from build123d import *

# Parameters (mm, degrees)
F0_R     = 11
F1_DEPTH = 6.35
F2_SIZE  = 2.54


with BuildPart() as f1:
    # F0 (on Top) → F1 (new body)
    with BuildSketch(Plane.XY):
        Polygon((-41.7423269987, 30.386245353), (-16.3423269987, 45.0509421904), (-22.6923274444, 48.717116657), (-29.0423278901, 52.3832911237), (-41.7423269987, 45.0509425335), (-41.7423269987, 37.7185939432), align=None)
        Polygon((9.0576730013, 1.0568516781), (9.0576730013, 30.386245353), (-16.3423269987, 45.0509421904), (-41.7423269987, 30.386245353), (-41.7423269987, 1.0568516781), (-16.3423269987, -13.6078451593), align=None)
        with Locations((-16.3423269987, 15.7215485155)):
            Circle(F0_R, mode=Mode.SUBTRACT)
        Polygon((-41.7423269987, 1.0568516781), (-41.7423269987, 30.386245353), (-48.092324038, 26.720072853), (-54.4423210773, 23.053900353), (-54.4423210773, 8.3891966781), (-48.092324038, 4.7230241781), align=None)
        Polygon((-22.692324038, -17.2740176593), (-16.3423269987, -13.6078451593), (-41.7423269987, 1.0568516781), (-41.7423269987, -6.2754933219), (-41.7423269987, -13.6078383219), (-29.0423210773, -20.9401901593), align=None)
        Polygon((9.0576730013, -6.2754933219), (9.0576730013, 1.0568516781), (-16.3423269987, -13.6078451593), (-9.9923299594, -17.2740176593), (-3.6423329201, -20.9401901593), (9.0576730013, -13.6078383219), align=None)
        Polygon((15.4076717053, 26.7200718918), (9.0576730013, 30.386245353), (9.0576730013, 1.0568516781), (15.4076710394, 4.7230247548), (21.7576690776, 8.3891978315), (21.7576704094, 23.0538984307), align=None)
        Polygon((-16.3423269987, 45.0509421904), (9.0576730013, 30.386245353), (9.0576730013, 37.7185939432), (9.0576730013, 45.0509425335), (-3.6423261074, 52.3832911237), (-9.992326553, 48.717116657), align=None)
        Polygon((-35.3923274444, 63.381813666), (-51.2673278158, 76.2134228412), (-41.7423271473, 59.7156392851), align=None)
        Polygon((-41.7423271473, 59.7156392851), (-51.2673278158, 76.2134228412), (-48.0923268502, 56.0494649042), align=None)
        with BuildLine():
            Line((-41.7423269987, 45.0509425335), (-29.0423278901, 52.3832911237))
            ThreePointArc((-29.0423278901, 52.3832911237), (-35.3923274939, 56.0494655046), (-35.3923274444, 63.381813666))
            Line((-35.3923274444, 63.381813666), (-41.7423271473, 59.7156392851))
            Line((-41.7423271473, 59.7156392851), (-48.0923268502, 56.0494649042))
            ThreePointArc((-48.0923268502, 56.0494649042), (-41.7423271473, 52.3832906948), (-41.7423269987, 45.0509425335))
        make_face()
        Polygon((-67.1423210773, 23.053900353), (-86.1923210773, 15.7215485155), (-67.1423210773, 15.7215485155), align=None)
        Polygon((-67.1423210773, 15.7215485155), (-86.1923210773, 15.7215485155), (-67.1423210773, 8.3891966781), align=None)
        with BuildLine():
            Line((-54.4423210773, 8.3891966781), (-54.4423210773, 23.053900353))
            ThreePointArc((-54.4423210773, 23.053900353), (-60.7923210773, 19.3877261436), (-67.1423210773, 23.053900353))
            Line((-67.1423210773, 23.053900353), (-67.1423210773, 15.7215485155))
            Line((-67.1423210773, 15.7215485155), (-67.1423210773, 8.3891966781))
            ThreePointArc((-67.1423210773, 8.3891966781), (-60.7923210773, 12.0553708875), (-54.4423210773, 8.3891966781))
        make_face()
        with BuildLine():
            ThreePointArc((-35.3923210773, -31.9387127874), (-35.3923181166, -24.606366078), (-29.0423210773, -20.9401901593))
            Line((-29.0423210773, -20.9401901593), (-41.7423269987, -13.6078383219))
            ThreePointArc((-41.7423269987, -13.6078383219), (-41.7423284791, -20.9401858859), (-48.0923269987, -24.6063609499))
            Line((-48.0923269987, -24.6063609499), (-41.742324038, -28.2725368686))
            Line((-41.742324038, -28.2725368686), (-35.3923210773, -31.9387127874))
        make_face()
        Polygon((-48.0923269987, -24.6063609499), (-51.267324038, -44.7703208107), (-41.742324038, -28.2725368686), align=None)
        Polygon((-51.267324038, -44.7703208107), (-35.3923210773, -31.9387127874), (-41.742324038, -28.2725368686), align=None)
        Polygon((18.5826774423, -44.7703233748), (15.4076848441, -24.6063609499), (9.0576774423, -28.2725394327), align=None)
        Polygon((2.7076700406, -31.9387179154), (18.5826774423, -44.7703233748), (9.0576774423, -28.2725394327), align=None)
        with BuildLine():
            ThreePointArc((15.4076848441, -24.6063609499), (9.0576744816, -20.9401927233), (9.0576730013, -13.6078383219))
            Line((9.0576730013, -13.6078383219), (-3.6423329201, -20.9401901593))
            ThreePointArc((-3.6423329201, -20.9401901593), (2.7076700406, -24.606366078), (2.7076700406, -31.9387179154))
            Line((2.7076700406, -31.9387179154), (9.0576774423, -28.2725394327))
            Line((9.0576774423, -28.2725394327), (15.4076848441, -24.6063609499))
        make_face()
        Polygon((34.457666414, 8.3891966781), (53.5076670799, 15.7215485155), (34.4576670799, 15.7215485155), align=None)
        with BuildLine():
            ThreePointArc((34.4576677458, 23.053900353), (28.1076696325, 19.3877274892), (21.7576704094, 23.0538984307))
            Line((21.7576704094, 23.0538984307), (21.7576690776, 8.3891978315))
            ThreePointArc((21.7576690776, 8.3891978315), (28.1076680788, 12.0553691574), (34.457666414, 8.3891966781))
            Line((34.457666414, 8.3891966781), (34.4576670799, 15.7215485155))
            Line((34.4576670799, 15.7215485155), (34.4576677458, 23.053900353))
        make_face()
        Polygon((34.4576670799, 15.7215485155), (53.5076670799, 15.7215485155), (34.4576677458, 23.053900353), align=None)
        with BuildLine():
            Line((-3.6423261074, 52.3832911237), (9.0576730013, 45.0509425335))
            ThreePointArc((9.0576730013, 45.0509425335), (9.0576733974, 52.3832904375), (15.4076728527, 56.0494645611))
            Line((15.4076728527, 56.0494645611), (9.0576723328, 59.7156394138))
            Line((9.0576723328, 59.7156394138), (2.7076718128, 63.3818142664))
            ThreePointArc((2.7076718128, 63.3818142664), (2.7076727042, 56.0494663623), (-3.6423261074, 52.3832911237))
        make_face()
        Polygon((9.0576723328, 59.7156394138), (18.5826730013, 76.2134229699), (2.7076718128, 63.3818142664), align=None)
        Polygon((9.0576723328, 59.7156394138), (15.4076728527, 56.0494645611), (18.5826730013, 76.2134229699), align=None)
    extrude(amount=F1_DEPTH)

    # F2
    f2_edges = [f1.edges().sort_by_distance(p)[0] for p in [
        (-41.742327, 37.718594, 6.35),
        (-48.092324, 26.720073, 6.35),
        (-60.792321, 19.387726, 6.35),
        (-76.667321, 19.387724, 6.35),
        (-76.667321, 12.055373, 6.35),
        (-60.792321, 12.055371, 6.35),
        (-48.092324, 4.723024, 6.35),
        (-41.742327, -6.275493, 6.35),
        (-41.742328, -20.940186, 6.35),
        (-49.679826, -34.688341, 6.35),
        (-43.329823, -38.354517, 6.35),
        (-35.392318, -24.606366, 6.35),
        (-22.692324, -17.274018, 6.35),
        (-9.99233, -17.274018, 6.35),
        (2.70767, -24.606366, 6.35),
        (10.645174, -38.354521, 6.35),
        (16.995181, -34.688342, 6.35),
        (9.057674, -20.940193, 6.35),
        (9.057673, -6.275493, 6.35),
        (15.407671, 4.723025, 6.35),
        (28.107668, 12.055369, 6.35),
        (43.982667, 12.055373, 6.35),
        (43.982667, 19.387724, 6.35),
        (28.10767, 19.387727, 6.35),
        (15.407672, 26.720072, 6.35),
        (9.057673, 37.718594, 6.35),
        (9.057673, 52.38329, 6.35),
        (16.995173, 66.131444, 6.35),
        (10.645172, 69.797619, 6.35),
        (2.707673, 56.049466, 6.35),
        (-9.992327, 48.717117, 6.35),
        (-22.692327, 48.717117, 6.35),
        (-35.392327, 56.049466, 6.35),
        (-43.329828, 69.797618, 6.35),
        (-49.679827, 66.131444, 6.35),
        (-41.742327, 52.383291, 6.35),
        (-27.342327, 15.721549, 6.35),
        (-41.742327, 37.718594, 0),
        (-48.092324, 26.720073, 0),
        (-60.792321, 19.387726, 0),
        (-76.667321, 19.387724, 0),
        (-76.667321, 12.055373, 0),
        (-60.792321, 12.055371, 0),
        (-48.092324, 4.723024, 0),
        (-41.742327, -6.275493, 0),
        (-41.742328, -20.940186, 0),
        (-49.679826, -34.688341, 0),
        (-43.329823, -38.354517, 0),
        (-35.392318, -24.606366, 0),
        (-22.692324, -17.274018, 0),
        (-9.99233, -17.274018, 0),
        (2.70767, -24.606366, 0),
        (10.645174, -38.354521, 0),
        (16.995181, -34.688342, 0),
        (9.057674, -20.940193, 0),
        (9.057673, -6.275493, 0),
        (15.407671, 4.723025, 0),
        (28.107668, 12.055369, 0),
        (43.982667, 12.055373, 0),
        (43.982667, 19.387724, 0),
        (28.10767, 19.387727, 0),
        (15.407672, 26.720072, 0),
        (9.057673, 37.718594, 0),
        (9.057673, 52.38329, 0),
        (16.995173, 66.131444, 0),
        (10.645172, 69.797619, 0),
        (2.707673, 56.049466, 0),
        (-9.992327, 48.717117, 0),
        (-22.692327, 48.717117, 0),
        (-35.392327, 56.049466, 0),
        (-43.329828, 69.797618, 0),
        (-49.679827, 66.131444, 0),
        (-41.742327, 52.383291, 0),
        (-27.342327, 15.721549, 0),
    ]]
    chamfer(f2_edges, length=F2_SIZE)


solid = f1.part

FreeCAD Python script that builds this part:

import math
import FreeCAD as App
import Part
import Sketcher

V = App.Vector
Q = App.Units.Quantity


def edges_at(feature, points):
    """Names of the edges that pass closest to the given points."""
    edges = feature.Shape.Edges
    near = lambda p: min(range(len(edges)), key=lambda i: edges[i].distToShape(Part.Vertex(*p))[0])
    return sorted({f"Edge{near(p) + 1}" for p in points})

doc = App.newDocument("Part")
body = doc.addObject("PartDesign::Body", "Body")

sketch1 = body.newObject("Sketcher::SketchObject", "Sketch")
sketch1.AttachmentSupport = (doc.getObject("XY_Plane"), [""])
sketch1.MapMode = "FlatFace"
sketch1.addGeometry(Part.LineSegment(V(-16.342327, 45.050942, 0), V(-22.692327, 48.717117, 0)), False)
sketch1.addGeometry(Part.LineSegment(V(-22.692327, 48.717117, 0), V(-29.042328, 52.383291, 0)), False)
sketch1.addGeometry(Part.ArcOfCircle(Part.Circle(V(-29.042327, 59.71564, 0), V(0, 0, 1), 7.332348), math.radians(150.000001), math.radians(269.999996)), False)
sketch1.addGeometry(Part.LineSegment(V(-35.392327, 63.381814, 0), V(-51.267328, 76.213423, 0)), False)
sketch1.addGeometry(Part.LineSegment(V(-51.267328, 76.213423, 0), V(-48.092327, 56.049465, 0)), False)
sketch1.addGeometry(Part.ArcOfCircle(Part.Circle(V(-48.092327, 48.717116, 0), V(0, 0, 1), 7.332348), math.radians(-29.999998), math.radians(89.999998)), False)
sketch1.addGeometry(Part.LineSegment(V(-41.742327, 45.050943, 0), V(-41.742327, 30.386245, 0)), False)
sketch1.addGeometry(Part.LineSegment(V(-41.742327, 30.386245, 0), V(-54.442321, 23.0539, 0)), False)
sketch1.addGeometry(Part.ArcOfCircle(Part.Circle(V(-60.792321, 26.720075, 0), V(0, 0, 1), 7.332348), math.radians(-150), math.radians(-30)), False)
sketch1.addGeometry(Part.LineSegment(V(-67.142321, 23.0539, 0), V(-86.192321, 15.721549, 0)), False)
sketch1.addGeometry(Part.LineSegment(V(-86.192321, 15.721549, 0), V(-67.142321, 8.389197, 0)), False)
sketch1.addGeometry(Part.ArcOfCircle(Part.Circle(V(-60.792321, 4.723022, 0), V(0, 0, 1), 7.332348), math.radians(30), math.radians(150)), False)
sketch1.addGeometry(Part.LineSegment(V(-54.442321, 8.389197, 0), V(-41.742327, 1.056852, 0)), False)
sketch1.addGeometry(Part.LineSegment(V(-41.742327, 1.056852, 0), V(-41.742327, -13.607838, 0)), False)
sketch1.addGeometry(Part.ArcOfCircle(Part.Circle(V(-48.09233, -17.274011, 0), V(0, 0, 1), 7.33235), math.radians(-89.999977), math.radians(29.999977)), False)
sketch1.addGeometry(Part.LineSegment(V(-48.092327, -24.606361, 0), V(-51.267324, -44.770321, 0)), False)
sketch1.addGeometry(Part.LineSegment(V(-51.267324, -44.770321, 0), V(-35.392321, -31.938713, 0)), False)
sketch1.addGeometry(Part.ArcOfCircle(Part.Circle(V(-29.042315, -28.272542, 0), V(0, 0, 1), 7.332352), math.radians(90.000046), math.radians(209.999954)), False)
sketch1.addGeometry(Part.LineSegment(V(-29.042321, -20.94019, 0), V(-16.342327, -13.607845, 0)), False)
sketch1.addGeometry(Part.LineSegment(V(-16.342327, -13.607845, 0), V(-3.642333, -20.94019, 0)), False)
sketch1.addGeometry(Part.ArcOfCircle(Part.Circle(V(-3.642333, -28.272542, 0), V(0, 0, 1), 7.332352), math.radians(-30), math.radians(90)), False)
sketch1.addGeometry(Part.LineSegment(V(2.70767, -31.938718, 0), V(18.582677, -44.770323, 0)), False)
sketch1.addGeometry(Part.LineSegment(V(18.582677, -44.770323, 0), V(15.407685, -24.606361, 0)), False)
sketch1.addGeometry(Part.ArcOfCircle(Part.Circle(V(15.40767, -17.274014, 0), V(0, 0, 1), 7.332347), math.radians(149.999977), math.radians(270.000116)), False)
sketch1.addGeometry(Part.LineSegment(V(9.057673, -13.607838, 0), V(9.057673, 1.056852, 0)), False)
sketch1.addGeometry(Part.LineSegment(V(9.057673, 1.056852, 0), V(15.407671, 4.723025, 0)), False)
sketch1.addGeometry(Part.LineSegment(V(15.407671, 4.723025, 0), V(21.757669, 8.389198, 0)), False)
sketch1.addGeometry(Part.ArcOfCircle(Part.Circle(V(28.107667, 4.723021, 0), V(0, 0, 1), 7.332348), math.radians(30.000016), math.radians(149.999974)), False)
sketch1.addGeometry(Part.LineSegment(V(34.457666, 8.389197, 0), V(53.507667, 15.721549, 0)), False)
sketch1.addGeometry(Part.LineSegment(V(53.507667, 15.721549, 0), V(34.457668, 23.0539, 0)), False)
sketch1.addGeometry(Part.ArcOfCircle(Part.Circle(V(28.107669, 26.720076, 0), V(0, 0, 1), 7.332348), math.radians(-149.999971), math.radians(-30.000012)), False)
sketch1.addGeometry(Part.LineSegment(V(21.75767, 23.053898, 0), V(15.407672, 26.720072, 0)), False)
sketch1.addGeometry(Part.LineSegment(V(15.407672, 26.720072, 0), V(9.057673, 30.386245, 0)), False)
sketch1.addGeometry(Part.LineSegment(V(9.057673, 30.386245, 0), V(9.057673, 45.050943, 0)), False)
sketch1.addGeometry(Part.ArcOfCircle(Part.Circle(V(15.407673, 48.717116, 0), V(0, 0, 1), 7.332348), math.radians(90.000004), math.radians(209.999995)), False)
sketch1.addGeometry(Part.LineSegment(V(15.407673, 56.049465, 0), V(18.582673, 76.213423, 0)), False)
sketch1.addGeometry(Part.LineSegment(V(18.582673, 76.213423, 0), V(2.707672, 63.381814, 0)), False)
sketch1.addGeometry(Part.ArcOfCircle(Part.Circle(V(-3.642328, 59.71564, 0), V(0, 0, 1), 7.332348), math.radians(-89.999986), math.radians(30.000005)), False)
sketch1.addGeometry(Part.LineSegment(V(-3.642326, 52.383291, 0), V(-9.992327, 48.717117, 0)), False)
sketch1.addGeometry(Part.LineSegment(V(-9.992327, 48.717117, 0), V(-16.342327, 45.050942, 0)), False)
sketch1.addGeometry(Part.Circle(V(-16.342327, 15.721549, 0), V(0, 0, 1), 11), False)
sketch1.addConstraint(Sketcher.Constraint("Coincident", 0, 2, 1, 1))
sketch1.addConstraint(Sketcher.Constraint("Coincident", 1, 2, 2, 2))
sketch1.addConstraint(Sketcher.Constraint("Coincident", 2, 1, 3, 1))
sketch1.addConstraint(Sketcher.Constraint("Coincident", 3, 2, 4, 1))
sketch1.addConstraint(Sketcher.Constraint("Coincident", 4, 2, 5, 2))
sketch1.addConstraint(Sketcher.Constraint("Coincident", 5, 1, 6, 1))
sketch1.addConstraint(Sketcher.Constraint("Coincident", 6, 2, 7, 1))
sketch1.addConstraint(Sketcher.Constraint("Coincident", 7, 2, 8, 2))
sketch1.addConstraint(Sketcher.Constraint("Coincident", 8, 1, 9, 1))
sketch1.addConstraint(Sketcher.Constraint("Coincident", 9, 2, 10, 1))
sketch1.addConstraint(Sketcher.Constraint("Coincident", 10, 2, 11, 2))
sketch1.addConstraint(Sketcher.Constraint("Coincident", 11, 1, 12, 1))
sketch1.addConstraint(Sketcher.Constraint("Coincident", 12, 2, 13, 1))
sketch1.addConstraint(Sketcher.Constraint("Coincident", 13, 2, 14, 2))
sketch1.addConstraint(Sketcher.Constraint("Coincident", 14, 1, 15, 1))
sketch1.addConstraint(Sketcher.Constraint("Coincident", 15, 2, 16, 1))
sketch1.addConstraint(Sketcher.Constraint("Coincident", 16, 2, 17, 2))
sketch1.addConstraint(Sketcher.Constraint("Coincident", 17, 1, 18, 1))
sketch1.addConstraint(Sketcher.Constraint("Coincident", 18, 2, 19, 1))
sketch1.addConstraint(Sketcher.Constraint("Coincident", 19, 2, 20, 2))
sketch1.addConstraint(Sketcher.Constraint("Coincident", 20, 1, 21, 1))
sketch1.addConstraint(Sketcher.Constraint("Coincident", 21, 2, 22, 1))
sketch1.addConstraint(Sketcher.Constraint("Coincident", 22, 2, 23, 2))
sketch1.addConstraint(Sketcher.Constraint("Coincident", 23, 1, 24, 1))
sketch1.addConstraint(Sketcher.Constraint("Coincident", 24, 2, 25, 1))
sketch1.addConstraint(Sketcher.Constraint("Coincident", 25, 2, 26, 1))
sketch1.addConstraint(Sketcher.Constraint("Coincident", 26, 2, 27, 2))
sketch1.addConstraint(Sketcher.Constraint("Coincident", 27, 1, 28, 1))
sketch1.addConstraint(Sketcher.Constraint("Coincident", 28, 2, 29, 1))
sketch1.addConstraint(Sketcher.Constraint("Coincident", 29, 2, 30, 2))
sketch1.addConstraint(Sketcher.Constraint("Coincident", 30, 1, 31, 1))
sketch1.addConstraint(Sketcher.Constraint("Coincident", 31, 2, 32, 1))
sketch1.addConstraint(Sketcher.Constraint("Coincident", 32, 2, 33, 1))
sketch1.addConstraint(Sketcher.Constraint("Coincident", 33, 2, 34, 2))
sketch1.addConstraint(Sketcher.Constraint("Coincident", 34, 1, 35, 1))
sketch1.addConstraint(Sketcher.Constraint("Coincident", 35, 2, 36, 1))
sketch1.addConstraint(Sketcher.Constraint("Coincident", 36, 2, 37, 2))
sketch1.addConstraint(Sketcher.Constraint("Coincident", 37, 1, 38, 1))
sketch1.addConstraint(Sketcher.Constraint("Coincident", 38, 2, 39, 1))
sketch1.addConstraint(Sketcher.Constraint("Coincident", 39, 2, 0, 1))
sketch1.addConstraint(Sketcher.Constraint("Vertical", 6))
sketch1.addConstraint(Sketcher.Constraint("Vertical", 13))
sketch1.addConstraint(Sketcher.Constraint("Vertical", 24))
sketch1.addConstraint(Sketcher.Constraint("Vertical", 33))
sketch1.addConstraint(Sketcher.Constraint("DistanceX", 14, 3, 27, 3, Q("2.9999999 in")))
sketch1.addConstraint(Sketcher.Constraint("DistanceX", 2, 3, 37, 3, Q("1 in")))
sketch1.addConstraint(Sketcher.Constraint("DistanceX", 5, 3, 0, 2, Q("1 in")))
sketch1.addConstraint(Sketcher.Constraint("DistanceX", 1, 2, 37, 3, Q("1 in")))
sketch1.addConstraint(Sketcher.Constraint("DistanceX", 9, 2, 8, 3, Q("1 in")))
sketch1.addConstraint(Sketcher.Constraint("DistanceX", 9, 2, 11, 3, Q("1 in")))
sketch1.addConstraint(Sketcher.Constraint("DistanceX", 13, 2, 18, 2, Q("1 in")))
sketch1.addConstraint(Sketcher.Constraint("DistanceX", 30, 3, 28, 2, Q("0.9999999 in")))
sketch1.addConstraint(Sketcher.Constraint("DistanceX", 27, 3, 28, 2, Q("1 in")))
sketch1.addConstraint(Sketcher.Constraint("DistanceX", 14, 3, 23, 3, Q("2.5 in")))
sketch1.addConstraint(Sketcher.Constraint("DistanceX", 34, 3, 30, 3, Q("0.4999998 in")))
sketch1.addConstraint(Sketcher.Constraint("DistanceX", 5, 3, 34, 3, Q("2.5 in")))
sketch1.addConstraint(Sketcher.Constraint("DistanceX", 1, 2, 40, 3, Q("0.5 in")))
sketch1.addConstraint(Sketcher.Constraint("DistanceX", 5, 3, 2, 1, Q("0.5 in")))
sketch1.addConstraint(Sketcher.Constraint("DistanceX", 4, 2, 2, 1, Q("0.5 in")))
sketch1.addConstraint(Sketcher.Constraint("DistanceX", 5, 1, 1, 2, Q("0.5 in")))
sketch1.addConstraint(Sketcher.Constraint("DistanceX", 8, 1, 7, 2, Q("0.5 in")))
sketch1.addConstraint(Sketcher.Constraint("DistanceX", 10, 2, 7, 2, Q("0.5 in")))
sketch1.addConstraint(Sketcher.Constraint("DistanceX", 10, 2, 11, 1, Q("0.5 in")))
sketch1.addConstraint(Sketcher.Constraint("DistanceX", 20, 1, 23, 3, Q("0.5 in")))
sketch1.addConstraint(Sketcher.Constraint("DistanceX", 25, 2, 27, 3, Q("0.4999999 in")))
sketch1.addConstraint(Sketcher.Constraint("DistanceX", 24, 2, 26, 2, Q("0.4999998 in")))
sketch1.addConstraint(Sketcher.Constraint("DistanceX", 26, 2, 27, 1, Q("0.4999999 in")))
sketch1.addConstraint(Sketcher.Constraint("DistanceX", 26, 2, 29, 2, Q("0.4999999 in")))
sketch1.addConstraint(Sketcher.Constraint("DistanceX", 30, 1, 29, 2, Q("0.4999999 in")))
sketch1.addConstraint(Sketcher.Constraint("DistanceX", 31, 2, 30, 3, Q("0.4999999 in")))
sketch1.addConstraint(Sketcher.Constraint("DistanceX", 32, 2, 30, 1, Q("0.4999999 in")))
sketch1.addConstraint(Sketcher.Constraint("DistanceX", 37, 3, 33, 2, Q("0.5 in")))
sketch1.addConstraint(Sketcher.Constraint("DistanceX", 36, 2, 34, 1, Q("0.5 in")))
sketch1.addConstraint(Sketcher.Constraint("DistanceX", 36, 2, 34, 3, Q("0.5000001 in")))
sketch1.addConstraint(Sketcher.Constraint("DistanceX", 37, 1, 33, 2, Q("0.5 in")))
sketch1.addConstraint(Sketcher.Constraint("DistanceX", 0, 2, 38, 2, Q("0.5 in")))
sketch1.addConstraint(Sketcher.Constraint("DistanceX", 1, 2, 39, 2, Q("0.5 in")))
sketch1.addConstraint(Sketcher.Constraint("Diameter", 40, Q("22 mm")))
sketch1.addConstraint(Sketcher.Constraint("DistanceX", 5, 3, 2, 3, Q("0.75 in")))
sketch1.addConstraint(Sketcher.Constraint("DistanceX", 14, 3, 20, 3, Q("1.7499999 in")))
sketch1.addConstraint(Sketcher.Constraint("DistanceX", 8, 3, 7, 2, Q("0.25 in")))
sketch1.addConstraint(Sketcher.Constraint("DistanceX", 14, 3, 12, 2, Q("0.2500001 in")))
sketch1.addConstraint(Sketcher.Constraint("DistanceX", 14, 1, 13, 2, Q("0.25 in")))
sketch1.addConstraint(Sketcher.Constraint("DistanceX", 16, 2, 17, 1, Q("0.25 in")))
sketch1.addConstraint(Sketcher.Constraint("DistanceX", 19, 2, 23, 3, Q("0.7500001 in")))
sketch1.addConstraint(Sketcher.Constraint("Radius", 2, Q("7.332348 mm")))
sketch1.addConstraint(Sketcher.Constraint("Radius", 5, Q("7.332348 mm")))
sketch1.addConstraint(Sketcher.Constraint("Radius", 8, Q("7.332348 mm")))
sketch1.addConstraint(Sketcher.Constraint("Radius", 11, Q("7.332348 mm")))
sketch1.addConstraint(Sketcher.Constraint("Radius", 14, Q("7.33235 mm")))
sketch1.addConstraint(Sketcher.Constraint("Radius", 17, Q("7.332352 mm")))
sketch1.addConstraint(Sketcher.Constraint("Radius", 20, Q("7.332352 mm")))
sketch1.addConstraint(Sketcher.Constraint("Radius", 27, Q("7.332348 mm")))
sketch1.addConstraint(Sketcher.Constraint("Radius", 30, Q("7.332348 mm")))
sketch1.addConstraint(Sketcher.Constraint("Radius", 34, Q("7.332348 mm")))
sketch1.addConstraint(Sketcher.Constraint("Radius", 37, Q("7.332348 mm")))
sketch1.addConstraint(Sketcher.Constraint("DistanceX", 3, 2, 2, 1, Q("0.625 in")))
sketch1.addConstraint(Sketcher.Constraint("DistanceX", 15, 2, 14, 1, Q("0.1249999 in")))
sketch1.addConstraint(Sketcher.Constraint("DistanceX", 15, 2, 16, 2, Q("0.6250001 in")))
sketch1.addConstraint(Sketcher.Constraint("DistanceX", 18, 2, 21, 2, Q("1.3750002 in")))
sketch1.addConstraint(Sketcher.Constraint("DistanceX", 34, 1, 35, 2, Q("0.125 in")))
sketch1.addConstraint(Sketcher.Constraint("Radius", 23, Q("7.332347 mm")))
sketch1.addConstraint(Sketcher.Constraint("DistanceY", 14, 1, 11, 3, Q("1.1547001 in")))
sketch1.addConstraint(Sketcher.Constraint("DistanceY", 13, 2, 13, 1, Q("14.66469 mm")))
sketch1.addConstraint(Sketcher.Constraint("DistanceY", 24, 1, 24, 2, Q("14.66469 mm")))
sketch1.addConstraint(Sketcher.Constraint("DistanceY", -1, 1, 7, 2, Q("23.0539 mm")))
sketch1.addConstraint(Sketcher.Constraint("DistanceY", -1, 1, 29, 2, Q("23.0539 mm")))
sketch1.addConstraint(Sketcher.Constraint("DistanceY", 16, 2, 14, 3, Q("14.664702 mm")))
sketch1.addConstraint(Sketcher.Constraint("DistanceY", 26, 2, 30, 1, Q("14.664701 mm")))
sketch1.addConstraint(Sketcher.Constraint("DistanceY", 34, 3, 36, 2, Q("14.664698 mm")))
sketch1.addConstraint(Sketcher.Constraint("Distance", 0, Q("7.332349 mm")))
sketch1.addConstraint(Sketcher.Constraint("Distance", 1, Q("7.332349 mm")))
sketch1.addConstraint(Sketcher.Constraint("Distance", 7, Q("14.66469 mm")))
sketch1.addConstraint(Sketcher.Constraint("Distance", 12, Q("14.66469 mm")))
sketch1.addConstraint(Sketcher.Constraint("Distance", 18, Q("14.66469 mm")))
sketch1.addConstraint(Sketcher.Constraint("Distance", 19, Q("14.66469 mm")))
sketch1.addConstraint(Sketcher.Constraint("Distance", 38, Q("7.332349 mm")))
sketch1.addConstraint(Sketcher.Constraint("Distance", 39, Q("7.332349 mm")))
sketch1.addConstraint(Sketcher.Constraint("DistanceY", 6, 2, 6, 1, Q("14.664697 mm")))
sketch1.addConstraint(Sketcher.Constraint("DistanceY", 33, 1, 33, 2, Q("14.664697 mm")))
sketch1.addConstraint(Sketcher.Constraint("DistanceY", -1, 1, 2, 3, Q("59.71564 mm")))
sketch1.addConstraint(Sketcher.Constraint("DistanceX", 8, 3, -1, 1, Q("60.792321 mm")))
sketch1.addConstraint(Sketcher.Constraint("DistanceY", 14, 3, -1, 1, Q("17.274011 mm")))
sketch1.addConstraint(Sketcher.Constraint("DistanceY", 17, 3, -1, 1, Q("28.272542 mm")))
sketch1.addConstraint(Sketcher.Constraint("DistanceY", -1, 1, 40, 3, Q("15.721549 mm")))
sketch1.addConstraint(Sketcher.Constraint("DistanceY", -1, 1, 9, 2, Q("15.721549 mm")))
sketch1.addConstraint(Sketcher.Constraint("DistanceY", 15, 2, -1, 1, Q("44.770321 mm")))
sketch1.addConstraint(Sketcher.Constraint("DistanceY", 22, 2, -1, 1, Q("24.606361 mm")))
sketch1.addConstraint(Sketcher.Constraint("DistanceY", -1, 1, 28, 2, Q("15.721549 mm")))
sketch1.addConstraint(Sketcher.Constraint("DistanceY", -1, 1, 31, 2, Q("26.720072 mm")))
sketch1.addConstraint(Sketcher.Constraint("DistanceY", 2, 1, 3, 2, Q("12.831609 mm")))
sketch1.addConstraint(Sketcher.Constraint("DistanceY", 21, 2, 23, 3, Q("27.496309 mm")))
sketch1.addConstraint(Sketcher.Constraint("DistanceX", 23, 1, 22, 2, Q("6.350012 mm")))
sketch1.addConstraint(Sketcher.Constraint("DistanceY", 23, 3, 25, 2, Q("21.997039 mm")))
sketch1.addConstraint(Sketcher.Constraint("DistanceY", 34, 1, 35, 2, Q("20.163958 mm")))
pad1 = body.newObject("PartDesign::Pad", "Pad")
pad1.Profile = sketch1
pad1.Length = Q("0.25 in")
doc.recompute()

chamfer = body.newObject("PartDesign::Chamfer", "Chamfer")
chamfer.Base = (pad1, edges_at(pad1, [
    (-41.742, 37.719, 6.35),
    (-48.092, 26.72, 6.35),
    (-60.792, 19.388, 6.35),
    (-76.667, 19.388, 6.35),
    (-76.667, 12.055, 6.35),
    (-60.792, 12.055, 6.35),
    (-48.092, 4.723, 6.35),
    (-41.742, -6.275, 6.35),
    (-41.742, -20.94, 6.35),
    (-49.68, -34.688, 6.35),
    (-43.33, -38.355, 6.35),
    (-35.392, -24.606, 6.35),
    (-22.692, -17.274, 6.35),
    (-9.992, -17.274, 6.35),
    (2.708, -24.606, 6.35),
    (10.645, -38.355, 6.35),
    (16.995, -34.688, 6.35),
    (9.058, -20.94, 6.35),
    (9.058, -6.275, 6.35),
    (12.233, 2.89, 6.35),
    (28.108, 12.055, 6.35),
    (43.983, 12.055, 6.35),
    (43.983, 19.388, 6.35),
    (28.108, 19.388, 6.35),
    (18.583, 24.887, 6.35),
    (9.058, 37.719, 6.35),
    (9.058, 52.383, 6.35),
    (16.995, 66.131, 6.35),
    (10.645, 69.798, 6.35),
    (2.708, 56.049, 6.35),
    (-13.167, 46.884, 6.35),
    (-19.517, 46.884, 6.35),
    (-35.392, 56.049, 6.35),
    (-43.33, 69.798, 6.35),
    (-49.68, 66.131, 6.35),
    (-41.742, 52.383, 6.35),
    (-27.342, 15.722, 6.35),
    (-41.742, 37.719, 0),
    (-48.092, 26.72, 0),
    (-60.792, 19.388, 0),
    (-76.667, 19.388, 0),
    (-76.667, 12.055, 0),
    (-60.792, 12.055, 0),
    (-48.092, 4.723, 0),
    (-41.742, -6.275, 0),
    (-41.742, -20.94, 0),
    (-49.68, -34.688, 0),
    (-43.33, -38.355, 0),
    (-35.392, -24.606, 0),
    (-22.692, -17.274, 0),
    (-9.992, -17.274, 0),
    (2.708, -24.606, 0),
    (10.645, -38.355, 0),
    (16.995, -34.688, 0),
    (9.058, -20.94, 0),
    (9.058, -6.275, 0),
    (12.233, 2.89, 0),
    (28.108, 12.055, 0),
    (43.983, 12.055, 0),
    (43.983, 19.388, 0),
    (28.108, 19.388, 0),
    (18.583, 24.887, 0),
    (9.058, 37.719, 0),
    (9.058, 52.383, 0),
    (16.995, 66.131, 0),
    (10.645, 69.798, 0),
    (2.708, 56.049, 0),
    (-13.167, 46.884, 0),
    (-19.517, 46.884, 0),
    (-35.392, 56.049, 0),
    (-43.33, 69.798, 0),
    (-49.68, 66.131, 0),
    (-41.742, 52.383, 0),
    (-27.342, 15.722, 0),
]))
chamfer.Size = Q("0.1 in")

doc.recompute()
